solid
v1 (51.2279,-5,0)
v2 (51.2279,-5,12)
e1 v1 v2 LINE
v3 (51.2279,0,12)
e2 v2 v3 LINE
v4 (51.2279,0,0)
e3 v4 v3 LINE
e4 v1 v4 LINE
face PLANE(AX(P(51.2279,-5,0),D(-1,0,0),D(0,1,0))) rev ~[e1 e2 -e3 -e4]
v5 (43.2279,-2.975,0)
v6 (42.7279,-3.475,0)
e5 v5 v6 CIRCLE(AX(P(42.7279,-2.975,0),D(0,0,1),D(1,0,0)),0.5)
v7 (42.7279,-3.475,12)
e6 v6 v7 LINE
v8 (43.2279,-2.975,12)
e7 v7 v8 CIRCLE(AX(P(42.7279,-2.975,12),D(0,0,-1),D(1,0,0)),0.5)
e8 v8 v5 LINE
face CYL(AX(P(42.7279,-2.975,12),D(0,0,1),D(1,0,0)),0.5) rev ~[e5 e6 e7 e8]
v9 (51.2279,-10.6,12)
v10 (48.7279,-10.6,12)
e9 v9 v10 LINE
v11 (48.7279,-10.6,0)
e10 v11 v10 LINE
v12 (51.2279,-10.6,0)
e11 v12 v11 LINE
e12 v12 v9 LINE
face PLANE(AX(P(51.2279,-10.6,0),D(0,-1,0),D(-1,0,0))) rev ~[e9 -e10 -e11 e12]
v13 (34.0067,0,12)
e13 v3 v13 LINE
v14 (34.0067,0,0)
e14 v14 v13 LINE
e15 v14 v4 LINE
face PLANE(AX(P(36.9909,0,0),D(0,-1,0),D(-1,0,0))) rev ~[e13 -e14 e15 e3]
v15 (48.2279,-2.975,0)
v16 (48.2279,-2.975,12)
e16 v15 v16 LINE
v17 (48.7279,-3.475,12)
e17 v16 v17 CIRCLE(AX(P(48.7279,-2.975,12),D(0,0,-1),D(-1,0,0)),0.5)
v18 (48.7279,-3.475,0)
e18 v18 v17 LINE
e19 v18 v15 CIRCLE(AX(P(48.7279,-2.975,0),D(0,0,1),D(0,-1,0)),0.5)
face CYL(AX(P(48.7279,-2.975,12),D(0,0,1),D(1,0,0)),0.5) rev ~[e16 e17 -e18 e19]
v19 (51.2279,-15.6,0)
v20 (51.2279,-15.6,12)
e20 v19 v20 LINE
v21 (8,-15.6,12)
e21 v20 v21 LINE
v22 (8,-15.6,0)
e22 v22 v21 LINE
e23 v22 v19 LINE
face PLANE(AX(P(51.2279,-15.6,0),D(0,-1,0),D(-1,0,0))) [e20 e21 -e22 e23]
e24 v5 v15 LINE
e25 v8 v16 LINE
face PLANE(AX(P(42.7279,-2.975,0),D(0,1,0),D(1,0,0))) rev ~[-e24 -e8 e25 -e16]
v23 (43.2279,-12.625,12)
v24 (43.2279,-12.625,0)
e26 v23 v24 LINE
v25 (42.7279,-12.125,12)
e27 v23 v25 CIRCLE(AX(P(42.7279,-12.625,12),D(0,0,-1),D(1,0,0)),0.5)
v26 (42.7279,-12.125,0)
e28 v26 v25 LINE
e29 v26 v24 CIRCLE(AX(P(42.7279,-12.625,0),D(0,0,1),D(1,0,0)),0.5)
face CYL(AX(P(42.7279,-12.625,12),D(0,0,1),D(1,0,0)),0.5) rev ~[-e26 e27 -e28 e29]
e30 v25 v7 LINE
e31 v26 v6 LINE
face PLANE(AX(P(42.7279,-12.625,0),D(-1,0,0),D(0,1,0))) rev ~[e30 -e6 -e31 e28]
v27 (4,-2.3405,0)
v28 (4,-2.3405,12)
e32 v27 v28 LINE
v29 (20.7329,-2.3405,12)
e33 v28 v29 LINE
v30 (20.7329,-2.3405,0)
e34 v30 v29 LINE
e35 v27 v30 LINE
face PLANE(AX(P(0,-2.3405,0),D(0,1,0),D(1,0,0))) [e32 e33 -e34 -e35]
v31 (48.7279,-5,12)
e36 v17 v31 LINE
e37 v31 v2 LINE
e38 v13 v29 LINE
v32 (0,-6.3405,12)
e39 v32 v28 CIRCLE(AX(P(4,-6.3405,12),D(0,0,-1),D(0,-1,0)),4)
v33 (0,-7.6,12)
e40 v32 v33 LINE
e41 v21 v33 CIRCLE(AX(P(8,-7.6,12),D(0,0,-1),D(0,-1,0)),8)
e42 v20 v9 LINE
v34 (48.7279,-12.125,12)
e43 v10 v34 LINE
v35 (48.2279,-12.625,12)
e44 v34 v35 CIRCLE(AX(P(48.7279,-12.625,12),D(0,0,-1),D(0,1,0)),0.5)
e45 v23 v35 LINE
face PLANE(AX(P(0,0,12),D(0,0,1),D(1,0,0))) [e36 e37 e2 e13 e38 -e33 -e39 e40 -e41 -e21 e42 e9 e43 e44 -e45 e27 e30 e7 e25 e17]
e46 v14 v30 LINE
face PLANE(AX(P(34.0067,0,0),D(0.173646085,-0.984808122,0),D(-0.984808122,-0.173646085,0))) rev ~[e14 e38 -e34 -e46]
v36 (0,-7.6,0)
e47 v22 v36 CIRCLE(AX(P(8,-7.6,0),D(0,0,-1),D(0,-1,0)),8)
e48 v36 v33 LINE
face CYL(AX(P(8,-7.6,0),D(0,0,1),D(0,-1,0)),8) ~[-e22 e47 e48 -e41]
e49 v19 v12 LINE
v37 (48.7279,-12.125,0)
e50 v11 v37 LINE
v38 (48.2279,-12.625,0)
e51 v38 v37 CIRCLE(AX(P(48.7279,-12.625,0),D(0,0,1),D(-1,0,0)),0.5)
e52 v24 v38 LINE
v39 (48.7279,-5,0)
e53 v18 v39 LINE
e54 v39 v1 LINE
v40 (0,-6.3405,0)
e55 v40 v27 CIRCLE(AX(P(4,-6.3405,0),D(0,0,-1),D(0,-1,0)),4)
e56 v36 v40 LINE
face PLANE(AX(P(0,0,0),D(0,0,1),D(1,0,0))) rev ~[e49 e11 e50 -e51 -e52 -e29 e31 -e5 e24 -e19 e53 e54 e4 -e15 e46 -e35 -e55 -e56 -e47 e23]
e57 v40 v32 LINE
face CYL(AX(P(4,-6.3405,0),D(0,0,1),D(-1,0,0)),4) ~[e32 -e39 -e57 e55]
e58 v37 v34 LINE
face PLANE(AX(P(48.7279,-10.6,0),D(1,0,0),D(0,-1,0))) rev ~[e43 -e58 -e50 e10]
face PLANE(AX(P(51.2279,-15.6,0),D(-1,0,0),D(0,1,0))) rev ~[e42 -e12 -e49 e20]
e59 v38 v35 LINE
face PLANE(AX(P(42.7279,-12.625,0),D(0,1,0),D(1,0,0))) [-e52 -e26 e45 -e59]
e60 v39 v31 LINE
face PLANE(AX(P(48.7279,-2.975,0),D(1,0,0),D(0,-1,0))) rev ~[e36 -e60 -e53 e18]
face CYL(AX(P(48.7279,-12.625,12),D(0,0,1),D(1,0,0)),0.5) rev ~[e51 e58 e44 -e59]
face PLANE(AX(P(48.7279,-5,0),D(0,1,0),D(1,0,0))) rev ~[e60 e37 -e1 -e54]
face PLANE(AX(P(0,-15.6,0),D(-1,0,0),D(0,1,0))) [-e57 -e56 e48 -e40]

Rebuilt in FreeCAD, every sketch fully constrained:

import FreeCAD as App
import Part
import Sketcher

V = App.Vector
Q = App.Units.Quantity


def edges_at(feature, points):
    """Names of the edges that pass closest to the given points."""
    edges = feature.Shape.Edges
    near = lambda p: min(range(len(edges)), key=lambda i: edges[i].distToShape(Part.Vertex(*p))[0])
    return sorted({f"Edge{near(p) + 1}" for p in points})

doc = App.newDocument("Part")
params = doc.addObject("Spreadsheet::Sheet", "Params")
for row, (alias, value) in enumerate([
    ("sketch1_width", "6 mm"),
    ("sketch1_width2", "2.5 mm"),
    ("sketch1_height", "9.65 mm"),
    ("sketch1_height2", "5 mm"),
    ("pad1_length", "12 mm"),
    ("sketch2_diameter", "1 mm"),
    ("fillet_radius", "8 mm"),
    ("fillet2_radius", "4 mm"),
], start=1):
    params.set(f"A{row}", alias)
    params.set(f"B{row}", "=" + value)
    params.setAlias(f"B{row}", alias)

body = doc.addObject("PartDesign::Body", "Body")

sketch1 = doc.addObject("Sketcher::SketchObject", "Sketch")
body.addObject(sketch1)
sketch1.AttachmentSupport = (doc.XY_Plane, [""])
sketch1.MapMode = "FlatFace"
sketch1.addGeometry([
    Part.LineSegment(V(0, -15.6, 0), V(51.2, -15.6, 0)),
    Part.LineSegment(V(51.2, -15.6, 0), V(51.2, -10.6, 0)),
    Part.LineSegment(V(51.2, -10.6, 0), V(48.7, -10.6, 0)),
    Part.LineSegment(V(48.7, -10.6, 0), V(48.7, -12.6, 0)),
    Part.LineSegment(V(48.7, -12.6, 0), V(42.7, -12.6, 0)),
    Part.LineSegment(V(42.7, -12.6, 0), V(42.7, -3, 0)),
    Part.LineSegment(V(42.7, -3, 0), V(48.7, -3, 0)),
    Part.LineSegment(V(48.7, -3, 0), V(48.7, -5, 0)),
    Part.LineSegment(V(48.7, -5, 0), V(51.2, -5, 0)),
    Part.LineSegment(V(51.2, -5, 0), V(51.2, 0, 0)),
    Part.LineSegment(V(51.2, 0, 0), V(34, 0, 0)),
    Part.LineSegment(V(34, 0, 0), V(20.7, -2.3, 0)),
    Part.LineSegment(V(20.7, -2.3, 0), V(0, -2.3, 0)),
    Part.LineSegment(V(0, -2.3, 0), V(0, -15.6, 0)),
], False)
sketch1.addConstraint([
    Sketcher.Constraint("Coincident", 0, 2, 1, 1),
    Sketcher.Constraint("Coincident", 1, 2, 2, 1),
    Sketcher.Constraint("Coincident", 2, 2, 3, 1),
    Sketcher.Constraint("Coincident", 3, 2, 4, 1),
    Sketcher.Constraint("Coincident", 4, 2, 5, 1),
    Sketcher.Constraint("Coincident", 5, 2, 6, 1),
    Sketcher.Constraint("Coincident", 6, 2, 7, 1),
    Sketcher.Constraint("Coincident", 7, 2, 8, 1),
    Sketcher.Constraint("Coincident", 8, 2, 9, 1),
    Sketcher.Constraint("Coincident", 9, 2, 10, 1),
    Sketcher.Constraint("Coincident", 10, 2, 11, 1),
    Sketcher.Constraint("Coincident", 11, 2, 12, 1),
    Sketcher.Constraint("Coincident", 12, 2, 13, 1),
    Sketcher.Constraint("Coincident", 13, 2, 0, 1),
    Sketcher.Constraint("Horizontal", 0),
    Sketcher.Constraint("Vertical", 1),
    Sketcher.Constraint("Horizontal", 2),
    Sketcher.Constraint("Vertical", 3),
    Sketcher.Constraint("Horizontal", 4),
    Sketcher.Constraint("Vertical", 5),
    Sketcher.Constraint("Horizontal", 6),
    Sketcher.Constraint("Vertical", 7),
    Sketcher.Constraint("Horizontal", 8),
    Sketcher.Constraint("Vertical", 9),
    Sketcher.Constraint("Horizontal", 10),
    Sketcher.Constraint("Horizontal", 12),
    Sketcher.Constraint("Vertical", 13),
    Sketcher.Constraint("PointOnObject", 9, 2, -1),
    Sketcher.Constraint("PointOnObject", 12, 2, -2),
    Sketcher.Constraint("Vertical", 3, 2, 6, 2),
    Sketcher.Constraint("Vertical", 1, 2, 8, 2),
    Sketcher.Constraint("Equal", 3, 7),
    Sketcher.Constraint("Equal", 1, 9),
    Sketcher.Constraint("DistanceX", 4, 2, 4, 1, Q("6 mm")),
    Sketcher.Constraint("DistanceX", 2, 2, 2, 1, Q("2.5 mm")),
    Sketcher.Constraint("DistanceY", 5, 1, 5, 2, Q("9.65 mm")),
    Sketcher.Constraint("DistanceY", 2, 2, 7, 2, Q("5.6 mm")),
    Sketcher.Constraint("DistanceY", 1, 1, 1, 2, Q("5 mm")),
    Sketcher.Constraint("Angle", 11, Q("-170.0001 deg")),
    Sketcher.Constraint("DistanceX", 0, 1, 0, 2, Q("51.228 mm")),
    Sketcher.Constraint("DistanceX", 12, 2, 12, 1, Q("20.733 mm")),
    Sketcher.Constraint("DistanceX", 10, 2, 10, 1, Q("17.2212 mm")),
])
sketch1.setExpression("Constraints[33]", "Params.sketch1_width")
sketch1.setExpression("Constraints[34]", "Params.sketch1_width2")
sketch1.setExpression("Constraints[35]", "Params.sketch1_height")
sketch1.setExpression("Constraints[37]", "Params.sketch1_height2")
pad1 = doc.addObject("PartDesign::Pad", "Pad")
body.addObject(pad1)
pad1.Profile = sketch1
pad1.setExpression("Length", "Params.pad1_length")

sketch2 = doc.addObject("Sketcher::SketchObject", "Sketch001")
body.addObject(sketch2)
sketch2.AttachmentSupport = (doc.XY_Plane, [""])
sketch2.MapMode = "FlatFace"
sketch2.AttachmentOffset = App.Placement(V(0, 0, 12), App.Rotation())
sketch2.addGeometry([
    Part.Circle(V(42.7, -3, 0), V(0, 0, 1), 0.5),
    Part.Circle(V(48.7, -3, 0), V(0, 0, 1), 0.5),
    Part.Circle(V(48.7, -12.6, 0), V(0, 0, 1), 0.5),
    Part.Circle(V(42.7, -12.6, 0), V(0, 0, 1), 0.5),
], False)
sketch2.addConstraint([
    Sketcher.Constraint("Equal", 0, 1),
    Sketcher.Constraint("Equal", 1, 2),
    Sketcher.Constraint("Equal", 2, 3),
    Sketcher.Constraint("Horizontal", 0, 3, 1, 3),
    Sketcher.Constraint("Horizontal", 2, 3, 3, 3),
    Sketcher.Constraint("Vertical", 1, 3, 2, 3),
    Sketcher.Constraint("Vertical", 0, 3, 3, 3),
    Sketcher.Constraint("Diameter", 0, Q("1 mm")),
    Sketcher.Constraint("DistanceX", 0, 3, 1, 3, Q("6 mm")),
    Sketcher.Constraint("DistanceY", 2, 3, 1, 3, Q("9.65 mm")),
    Sketcher.Constraint("DistanceX", -1, 1, 0, 3, Q("42.728 mm")),
    Sketcher.Constraint("DistanceY", 0, 3, -1, 1, Q("2.975 mm")),
])
sketch2.setExpression("Constraints[7]", "Params.sketch2_diameter")
pocket1 = doc.addObject("PartDesign::Pocket", "Pocket")
body.addObject(pocket1)
pocket1.Profile = sketch2
pocket1.Type = "ThroughAll"
doc.recompute()

fillet = doc.addObject("PartDesign::Fillet", "Fillet")
body.addObject(fillet)
fillet.Base = (pocket1, edges_at(pocket1, [(0, -15.6, 6)]))
fillet.setExpression("Radius", "Params.fillet_radius")
doc.recompute()

fillet2 = doc.addObject("PartDesign::Fillet", "Fillet001")
body.addObject(fillet2)
fillet2.Base = (fillet, edges_at(fillet, [(0, -2.341, 6)]))
fillet2.setExpression("Radius", "Params.fillet2_radius")

doc.recompute()
